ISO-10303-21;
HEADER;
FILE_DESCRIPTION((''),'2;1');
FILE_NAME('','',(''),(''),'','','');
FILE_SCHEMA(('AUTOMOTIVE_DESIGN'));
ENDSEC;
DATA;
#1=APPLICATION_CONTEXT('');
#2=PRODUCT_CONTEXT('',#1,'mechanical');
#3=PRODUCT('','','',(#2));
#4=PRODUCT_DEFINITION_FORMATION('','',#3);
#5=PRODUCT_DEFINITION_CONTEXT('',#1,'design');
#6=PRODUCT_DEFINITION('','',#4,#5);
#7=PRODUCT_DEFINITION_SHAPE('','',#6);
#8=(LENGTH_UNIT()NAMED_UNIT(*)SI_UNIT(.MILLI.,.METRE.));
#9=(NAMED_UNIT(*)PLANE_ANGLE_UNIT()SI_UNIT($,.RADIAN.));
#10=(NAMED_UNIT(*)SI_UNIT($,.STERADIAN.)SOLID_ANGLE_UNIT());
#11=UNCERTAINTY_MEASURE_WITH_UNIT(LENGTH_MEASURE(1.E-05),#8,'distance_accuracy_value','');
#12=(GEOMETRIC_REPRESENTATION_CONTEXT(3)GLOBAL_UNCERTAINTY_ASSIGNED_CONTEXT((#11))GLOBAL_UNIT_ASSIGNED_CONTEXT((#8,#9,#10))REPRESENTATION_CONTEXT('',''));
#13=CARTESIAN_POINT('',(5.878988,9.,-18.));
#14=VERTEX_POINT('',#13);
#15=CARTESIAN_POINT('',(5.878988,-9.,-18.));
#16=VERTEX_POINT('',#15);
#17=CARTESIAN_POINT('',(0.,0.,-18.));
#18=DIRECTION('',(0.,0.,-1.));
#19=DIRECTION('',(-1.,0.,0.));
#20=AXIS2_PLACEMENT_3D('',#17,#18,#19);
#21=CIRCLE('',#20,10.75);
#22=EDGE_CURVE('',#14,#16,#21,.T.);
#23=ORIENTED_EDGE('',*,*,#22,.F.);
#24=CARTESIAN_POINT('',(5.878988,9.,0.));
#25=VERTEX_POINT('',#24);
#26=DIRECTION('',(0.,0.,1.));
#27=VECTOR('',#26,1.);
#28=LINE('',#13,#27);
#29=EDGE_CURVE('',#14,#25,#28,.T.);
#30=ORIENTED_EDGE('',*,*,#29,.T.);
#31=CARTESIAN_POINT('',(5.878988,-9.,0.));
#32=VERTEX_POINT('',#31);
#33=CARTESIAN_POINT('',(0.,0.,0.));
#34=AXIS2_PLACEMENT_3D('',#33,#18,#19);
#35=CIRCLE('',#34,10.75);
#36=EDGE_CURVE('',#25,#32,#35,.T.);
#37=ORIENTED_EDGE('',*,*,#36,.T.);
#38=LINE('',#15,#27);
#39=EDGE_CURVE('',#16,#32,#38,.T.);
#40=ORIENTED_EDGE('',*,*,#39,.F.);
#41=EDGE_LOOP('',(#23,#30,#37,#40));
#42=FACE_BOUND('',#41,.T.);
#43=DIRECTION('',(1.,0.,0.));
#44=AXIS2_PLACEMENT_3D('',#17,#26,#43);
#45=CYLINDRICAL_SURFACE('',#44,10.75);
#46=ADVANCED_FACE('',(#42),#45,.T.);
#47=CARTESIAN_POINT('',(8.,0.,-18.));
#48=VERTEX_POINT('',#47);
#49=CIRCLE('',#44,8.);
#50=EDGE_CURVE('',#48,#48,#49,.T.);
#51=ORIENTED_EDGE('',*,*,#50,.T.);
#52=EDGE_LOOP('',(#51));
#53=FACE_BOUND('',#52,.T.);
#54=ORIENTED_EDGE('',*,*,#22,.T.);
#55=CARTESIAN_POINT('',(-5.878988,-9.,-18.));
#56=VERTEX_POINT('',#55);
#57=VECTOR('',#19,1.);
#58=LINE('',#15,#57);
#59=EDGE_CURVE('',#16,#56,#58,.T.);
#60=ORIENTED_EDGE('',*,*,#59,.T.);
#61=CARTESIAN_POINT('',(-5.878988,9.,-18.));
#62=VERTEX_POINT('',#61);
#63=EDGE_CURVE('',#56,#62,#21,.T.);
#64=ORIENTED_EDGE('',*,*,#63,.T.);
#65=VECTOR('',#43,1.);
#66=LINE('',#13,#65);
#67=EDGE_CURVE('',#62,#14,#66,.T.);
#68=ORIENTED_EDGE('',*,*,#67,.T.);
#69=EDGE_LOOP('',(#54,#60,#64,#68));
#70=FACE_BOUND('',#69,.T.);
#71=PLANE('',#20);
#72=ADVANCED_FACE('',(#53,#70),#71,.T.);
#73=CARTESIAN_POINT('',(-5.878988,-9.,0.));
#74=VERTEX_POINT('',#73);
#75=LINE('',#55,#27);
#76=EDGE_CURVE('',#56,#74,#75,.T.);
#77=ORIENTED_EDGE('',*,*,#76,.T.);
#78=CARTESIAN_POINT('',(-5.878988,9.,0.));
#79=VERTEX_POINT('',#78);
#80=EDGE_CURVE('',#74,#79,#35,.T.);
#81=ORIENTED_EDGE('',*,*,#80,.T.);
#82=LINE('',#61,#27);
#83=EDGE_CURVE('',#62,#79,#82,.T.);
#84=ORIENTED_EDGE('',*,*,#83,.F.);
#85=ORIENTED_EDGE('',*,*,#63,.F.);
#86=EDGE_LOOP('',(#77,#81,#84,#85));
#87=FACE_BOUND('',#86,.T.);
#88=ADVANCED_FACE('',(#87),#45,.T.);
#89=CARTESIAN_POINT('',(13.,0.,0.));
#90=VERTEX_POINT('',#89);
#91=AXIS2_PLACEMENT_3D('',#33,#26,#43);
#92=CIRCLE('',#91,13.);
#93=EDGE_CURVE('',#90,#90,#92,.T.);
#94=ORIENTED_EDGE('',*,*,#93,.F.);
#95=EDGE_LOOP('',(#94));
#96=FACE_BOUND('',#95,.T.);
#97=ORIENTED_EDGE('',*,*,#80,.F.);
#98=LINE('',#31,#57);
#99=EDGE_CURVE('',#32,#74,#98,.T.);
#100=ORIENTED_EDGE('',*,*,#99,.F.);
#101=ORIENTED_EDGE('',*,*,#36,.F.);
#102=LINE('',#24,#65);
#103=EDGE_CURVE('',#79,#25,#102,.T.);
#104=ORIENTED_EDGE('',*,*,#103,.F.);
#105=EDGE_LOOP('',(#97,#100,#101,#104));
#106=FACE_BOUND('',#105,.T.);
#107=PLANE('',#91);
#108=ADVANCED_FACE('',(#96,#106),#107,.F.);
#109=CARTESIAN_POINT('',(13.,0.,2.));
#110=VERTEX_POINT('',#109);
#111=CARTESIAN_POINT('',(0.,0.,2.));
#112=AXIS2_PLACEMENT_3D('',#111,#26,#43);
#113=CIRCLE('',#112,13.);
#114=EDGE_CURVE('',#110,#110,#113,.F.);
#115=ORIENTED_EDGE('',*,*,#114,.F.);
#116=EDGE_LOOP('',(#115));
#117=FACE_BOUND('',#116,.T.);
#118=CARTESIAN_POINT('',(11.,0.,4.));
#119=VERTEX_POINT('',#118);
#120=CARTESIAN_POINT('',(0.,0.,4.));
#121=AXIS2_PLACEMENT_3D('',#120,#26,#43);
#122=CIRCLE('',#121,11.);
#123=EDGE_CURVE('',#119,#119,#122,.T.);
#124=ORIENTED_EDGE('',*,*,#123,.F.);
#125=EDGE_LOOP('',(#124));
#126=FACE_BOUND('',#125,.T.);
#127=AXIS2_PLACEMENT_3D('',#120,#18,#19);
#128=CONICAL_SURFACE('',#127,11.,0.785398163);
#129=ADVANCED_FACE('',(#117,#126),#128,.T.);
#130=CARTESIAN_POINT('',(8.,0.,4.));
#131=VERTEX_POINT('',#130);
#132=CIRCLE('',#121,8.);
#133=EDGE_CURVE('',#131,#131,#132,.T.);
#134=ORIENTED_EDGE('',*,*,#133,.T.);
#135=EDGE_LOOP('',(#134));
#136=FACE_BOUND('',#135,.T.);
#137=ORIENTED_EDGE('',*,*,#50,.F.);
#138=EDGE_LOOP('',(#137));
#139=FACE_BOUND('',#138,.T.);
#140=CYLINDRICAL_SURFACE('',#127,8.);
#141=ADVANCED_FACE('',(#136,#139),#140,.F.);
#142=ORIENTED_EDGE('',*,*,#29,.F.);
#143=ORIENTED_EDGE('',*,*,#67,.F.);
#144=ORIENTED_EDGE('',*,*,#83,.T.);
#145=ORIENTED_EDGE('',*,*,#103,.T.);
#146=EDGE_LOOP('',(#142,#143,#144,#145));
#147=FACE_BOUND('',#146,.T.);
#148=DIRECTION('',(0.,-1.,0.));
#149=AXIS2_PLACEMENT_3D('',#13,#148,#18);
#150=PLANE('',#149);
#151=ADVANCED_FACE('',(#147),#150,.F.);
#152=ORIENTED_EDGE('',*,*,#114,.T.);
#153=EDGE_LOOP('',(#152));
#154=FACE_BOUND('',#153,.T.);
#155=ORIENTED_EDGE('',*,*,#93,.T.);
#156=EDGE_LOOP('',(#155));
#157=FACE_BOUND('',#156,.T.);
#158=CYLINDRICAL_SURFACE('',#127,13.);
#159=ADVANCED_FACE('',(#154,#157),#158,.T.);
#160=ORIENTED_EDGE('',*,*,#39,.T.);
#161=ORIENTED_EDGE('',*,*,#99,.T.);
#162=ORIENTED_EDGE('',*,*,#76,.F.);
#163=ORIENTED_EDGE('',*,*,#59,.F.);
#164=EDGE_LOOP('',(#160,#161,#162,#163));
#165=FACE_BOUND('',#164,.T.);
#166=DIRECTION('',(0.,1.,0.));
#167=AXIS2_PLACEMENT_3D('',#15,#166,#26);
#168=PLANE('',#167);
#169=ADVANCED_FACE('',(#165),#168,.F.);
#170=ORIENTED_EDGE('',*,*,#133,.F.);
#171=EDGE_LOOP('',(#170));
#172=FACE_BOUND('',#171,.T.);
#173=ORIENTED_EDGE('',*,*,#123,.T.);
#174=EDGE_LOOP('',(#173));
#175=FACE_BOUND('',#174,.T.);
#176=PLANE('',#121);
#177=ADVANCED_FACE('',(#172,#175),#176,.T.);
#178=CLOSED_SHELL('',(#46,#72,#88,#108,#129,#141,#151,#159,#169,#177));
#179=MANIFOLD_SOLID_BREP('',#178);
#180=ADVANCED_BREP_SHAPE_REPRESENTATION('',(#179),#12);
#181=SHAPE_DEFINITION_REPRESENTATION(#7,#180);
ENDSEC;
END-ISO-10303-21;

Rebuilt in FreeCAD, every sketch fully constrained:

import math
import FreeCAD as App
import Part
import Sketcher


def edges_at(feature, points):
    """Names of the edges that pass closest to the given points."""
    edges = feature.Shape.Edges
    near = lambda p: min(range(len(edges)), key=lambda i: edges[i].distToShape(Part.Vertex(*p))[0])
    return sorted({f"Edge{near(p) + 1}" for p in points})

doc = App.newDocument("Part")
params = doc.addObject("Spreadsheet::Sheet", "Params")
for row, (alias, value) in enumerate([
    ("sketch1_diameter", "26 mm"),
    ("sketch1_diameter2", "16 mm"),
    ("pad1_length", "4 mm"),
    ("sketch2_radius", "10.75 mm"),
    ("pad2_length", "18 mm"),
    ("sketch3_diameter", "16 mm"),
    ("pocket1_length", "18 mm"),
    ("chamfer_size", "2 mm"),
], start=1):
    params.set(f"A{row}", alias)
    params.set(f"B{row}", "=" + value)
    params.setAlias(f"B{row}", alias)

body = doc.addObject("PartDesign::Body", "Body")

sketch1 = body.newObject("Sketcher::SketchObject", "Sketch")
sketch1.AttachmentSupport = (doc.getObject("XY_Plane"), [""])
sketch1.MapMode = "FlatFace"
sketch1.addGeometry([
    Part.Circle(App.Vector(0, 0, 0), App.Vector(0, 0, 1), 13),
    Part.Circle(App.Vector(0, 0, 0), App.Vector(0, 0, 1), 8),
], False)
sketch1.addConstraint([
    Sketcher.Constraint("Coincident", 0, 3, -1, 1),
    Sketcher.Constraint("Coincident", 1, 3, -1, 1),
    Sketcher.Constraint("Diameter", 0, 26.0),
    Sketcher.Constraint("Diameter", 1, 16.0),
])
sketch1.setExpression("Constraints[2]", "Params.sketch1_diameter")
sketch1.setExpression("Constraints[3]", "Params.sketch1_diameter2")
pad1 = body.newObject("PartDesign::Pad", "Pad")
pad1.Profile = sketch1
pad1.setExpression("Length", "Params.pad1_length")

sketch2 = body.newObject("Sketcher::SketchObject", "Sketch001")
sketch2.AttachmentSupport = (doc.getObject("XY_Plane"), [""])
sketch2.MapMode = "FlatFace"
sketch2.addGeometry([
    Part.LineSegment(App.Vector(-6, 9, 0), App.Vector(6, 9, 0)),
    Part.ArcOfCircle(Part.Circle(App.Vector(0, 0, 0), App.Vector(0, 0, 1), 11), math.radians(-57), math.radians(57)),
    Part.LineSegment(App.Vector(6, -9, 0), App.Vector(-6, -9, 0)),
    Part.ArcOfCircle(Part.Circle(App.Vector(0, 0, 0), App.Vector(0, 0, 1), 11), math.radians(123), math.radians(237)),
], False)
sketch2.addConstraint([
    Sketcher.Constraint("Coincident", 0, 2, 1, 2),
    Sketcher.Constraint("Coincident", 1, 1, 2, 1),
    Sketcher.Constraint("Coincident", 2, 2, 3, 2),
    Sketcher.Constraint("Coincident", 3, 1, 0, 1),
    Sketcher.Constraint("Horizontal", 0),
    Sketcher.Constraint("Horizontal", 2),
    Sketcher.Constraint("Coincident", 1, 3, -1, 1),
    Sketcher.Constraint("Coincident", 3, 3, -1, 1),
    Sketcher.Constraint("Equal", 1, 3),
    Sketcher.Constraint("Vertical", 0, 2, 1, 1),
    Sketcher.Constraint("Radius", 1, 10.75),
    Sketcher.Constraint("DistanceY", -1, 1, 0, 2, 9.0),
])
sketch2.setExpression("Constraints[10]", "Params.sketch2_radius")
pad2 = body.newObject("PartDesign::Pad", "Pad001")
pad2.Profile = sketch2
pad2.setExpression("Length", "Params.pad2_length")
pad2.Reversed = True

sketch3 = body.newObject("Sketcher::SketchObject", "Sketch002")
sketch3.AttachmentSupport = (doc.getObject("XY_Plane"), [""])
sketch3.MapMode = "FlatFace"
sketch3.AttachmentOffset = App.Placement(App.Vector(0, 0, -18), App.Rotation())
sketch3.addGeometry(Part.Circle(App.Vector(0, 0, 0), App.Vector(0, 0, 1), 8), False)
sketch3.addConstraint([
    Sketcher.Constraint("Coincident", 0, 3, -1, 1),
    Sketcher.Constraint("Diameter", 0, 16.0),
])
sketch3.setExpression("Constraints[1]", "Params.sketch3_diameter")
pocket1 = body.newObject("PartDesign::Pocket", "Pocket")
pocket1.Profile = sketch3
pocket1.setExpression("Length", "Params.pocket1_length")
pocket1.Reversed = True
doc.recompute()

chamfer = body.newObject("PartDesign::Chamfer", "Chamfer")
chamfer.Base = (pocket1, edges_at(pocket1, [(-13, 0, 4)]))
chamfer.setExpression("Size", "Params.chamfer_size")

doc.recompute()
